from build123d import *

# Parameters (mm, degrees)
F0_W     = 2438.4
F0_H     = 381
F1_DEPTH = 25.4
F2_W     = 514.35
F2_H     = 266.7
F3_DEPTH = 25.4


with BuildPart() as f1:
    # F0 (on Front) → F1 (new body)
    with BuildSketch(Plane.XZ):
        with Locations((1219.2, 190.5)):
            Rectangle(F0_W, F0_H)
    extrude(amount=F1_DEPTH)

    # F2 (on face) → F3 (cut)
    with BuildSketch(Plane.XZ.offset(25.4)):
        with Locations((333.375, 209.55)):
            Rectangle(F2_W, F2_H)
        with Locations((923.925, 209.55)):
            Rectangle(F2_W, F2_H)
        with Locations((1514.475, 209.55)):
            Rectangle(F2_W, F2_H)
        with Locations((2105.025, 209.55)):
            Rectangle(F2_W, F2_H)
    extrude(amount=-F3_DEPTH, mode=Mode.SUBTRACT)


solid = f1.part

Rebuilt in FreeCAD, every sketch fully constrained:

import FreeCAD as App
import Part
import Sketcher
from FreeCAD import Vector
Q = App.Units.Quantity


def add_polygon(sketch, points):
    """Adds a closed chain of lines whose ends are joined by coincident constraints."""
    first, n = sketch.GeometryCount, len(points)
    for a, b in zip(points, points[1:] + points[:1]):
        sketch.addGeometry(Part.LineSegment(App.Vector(*a, 0), App.Vector(*b, 0)), False)
    for i in range(n):
        sketch.addConstraint(Sketcher.Constraint("Coincident", first + i, 2, first + (i + 1) % n, 1))

doc = App.newDocument("Part")
body = doc.addObject("PartDesign::Body", "Body")

# Sketch on XZ plane
sketch1 = body.newObject("Sketcher::SketchObject", "Sketch")
sketch1.AttachmentSupport = (doc.getObject("XZ_Plane"), [""])
sketch1.MapMode = "FlatFace"
add_polygon(sketch1, [(0, 381), (0, 0), (2438.4, 0), (2438.4, 381)])  # lines 0-3
sketch1.addConstraint([
    Sketcher.Constraint("Vertical", 0),
    Sketcher.Constraint("Horizontal", 1),
    Sketcher.Constraint("Vertical", 2),
    Sketcher.Constraint("Horizontal", 3),
    Sketcher.Constraint("Coincident", 0, 2, -1, 1),
    Sketcher.Constraint("DistanceX", 1, 1, 1, 2, Q("96 in")),
    Sketcher.Constraint("DistanceY", 0, 2, 0, 1, Q("15 in")),
])
pad1 = body.newObject("PartDesign::Pad", "Pad")
pad1.Profile = sketch1
pad1.Length = Q("1 in")

# Sketch on XZ plane
sketch2 = body.newObject("Sketcher::SketchObject", "Sketch001")
sketch2.AttachmentSupport = (doc.getObject("XZ_Plane"), [""])
sketch2.MapMode = "FlatFace"
sketch2.AttachmentOffset = App.Placement(Vector(0, 0, 1 * 25.4), App.Rotation())
add_polygon(sketch2, [(76.2, 342.9), (76.2, 76.2), (590.55, 76.2), (590.55, 342.9)])  # lines 0-3
add_polygon(sketch2, [(666.75, 342.9), (666.75, 76.2), (1181.1, 76.2), (1181.1, 342.9)])  # lines 4-7
add_polygon(sketch2, [(1257.3, 342.9), (1257.3, 76.2), (1771.65, 76.2), (1771.65, 342.9)])  # lines 8-11
add_polygon(sketch2, [(1847.85, 342.9), (1847.85, 76.2), (2362.2, 76.2), (2362.2, 342.9)])  # lines 12-15
sketch2.addConstraint([
    Sketcher.Constraint("Vertical", 0),
    Sketcher.Constraint("Horizontal", 1),
    Sketcher.Constraint("Vertical", 2),
    Sketcher.Constraint("Horizontal", 3),
    Sketcher.Constraint("Vertical", 4),
    Sketcher.Constraint("Horizontal", 5),
    Sketcher.Constraint("Vertical", 6),
    Sketcher.Constraint("Horizontal", 7),
    Sketcher.Constraint("Vertical", 8),
    Sketcher.Constraint("Horizontal", 9),
    Sketcher.Constraint("Vertical", 10),
    Sketcher.Constraint("Horizontal", 11),
    Sketcher.Constraint("Vertical", 12),
    Sketcher.Constraint("Horizontal", 13),
    Sketcher.Constraint("Vertical", 14),
    Sketcher.Constraint("Horizontal", 15),
    Sketcher.Constraint("Horizontal", 1, 2, 4, 2),
    Sketcher.Constraint("Horizontal", 3, 2, 6, 2),
    Sketcher.Constraint("Horizontal", 5, 2, 8, 2),
    Sketcher.Constraint("Horizontal", 7, 2, 10, 2),
    Sketcher.Constraint("Horizontal", 9, 2, 12, 2),
    Sketcher.Constraint("Horizontal", 11, 2, 14, 2),
    Sketcher.Constraint("Equal", 3, 5),
    Sketcher.Constraint("Equal", 7, 9),
    Sketcher.Constraint("Equal", 11, 13),
    Sketcher.Constraint("DistanceY", 0, 2, 0, 1, Q("10.5 in")),
    Sketcher.Constraint("DistanceX", -1, 1, 0, 2, Q("3 in")),
    Sketcher.Constraint("DistanceY", -1, 1, 0, 2, Q("3 in")),
    Sketcher.Constraint("DistanceX", -1, 1, 13, 2, Q("93 in")),
    Sketcher.Constraint("DistanceX", 1, 2, 4, 2, Q("3 in")),
    Sketcher.Constraint("DistanceX", 5, 2, 8, 2, Q("3 in")),
    Sketcher.Constraint("DistanceX", 9, 2, 12, 2, Q("3 in")),
])
pocket1 = body.newObject("PartDesign::Pocket", "Pocket")
pocket1.Profile = sketch2
pocket1.Length = Q("1 in")

doc.recompute()
